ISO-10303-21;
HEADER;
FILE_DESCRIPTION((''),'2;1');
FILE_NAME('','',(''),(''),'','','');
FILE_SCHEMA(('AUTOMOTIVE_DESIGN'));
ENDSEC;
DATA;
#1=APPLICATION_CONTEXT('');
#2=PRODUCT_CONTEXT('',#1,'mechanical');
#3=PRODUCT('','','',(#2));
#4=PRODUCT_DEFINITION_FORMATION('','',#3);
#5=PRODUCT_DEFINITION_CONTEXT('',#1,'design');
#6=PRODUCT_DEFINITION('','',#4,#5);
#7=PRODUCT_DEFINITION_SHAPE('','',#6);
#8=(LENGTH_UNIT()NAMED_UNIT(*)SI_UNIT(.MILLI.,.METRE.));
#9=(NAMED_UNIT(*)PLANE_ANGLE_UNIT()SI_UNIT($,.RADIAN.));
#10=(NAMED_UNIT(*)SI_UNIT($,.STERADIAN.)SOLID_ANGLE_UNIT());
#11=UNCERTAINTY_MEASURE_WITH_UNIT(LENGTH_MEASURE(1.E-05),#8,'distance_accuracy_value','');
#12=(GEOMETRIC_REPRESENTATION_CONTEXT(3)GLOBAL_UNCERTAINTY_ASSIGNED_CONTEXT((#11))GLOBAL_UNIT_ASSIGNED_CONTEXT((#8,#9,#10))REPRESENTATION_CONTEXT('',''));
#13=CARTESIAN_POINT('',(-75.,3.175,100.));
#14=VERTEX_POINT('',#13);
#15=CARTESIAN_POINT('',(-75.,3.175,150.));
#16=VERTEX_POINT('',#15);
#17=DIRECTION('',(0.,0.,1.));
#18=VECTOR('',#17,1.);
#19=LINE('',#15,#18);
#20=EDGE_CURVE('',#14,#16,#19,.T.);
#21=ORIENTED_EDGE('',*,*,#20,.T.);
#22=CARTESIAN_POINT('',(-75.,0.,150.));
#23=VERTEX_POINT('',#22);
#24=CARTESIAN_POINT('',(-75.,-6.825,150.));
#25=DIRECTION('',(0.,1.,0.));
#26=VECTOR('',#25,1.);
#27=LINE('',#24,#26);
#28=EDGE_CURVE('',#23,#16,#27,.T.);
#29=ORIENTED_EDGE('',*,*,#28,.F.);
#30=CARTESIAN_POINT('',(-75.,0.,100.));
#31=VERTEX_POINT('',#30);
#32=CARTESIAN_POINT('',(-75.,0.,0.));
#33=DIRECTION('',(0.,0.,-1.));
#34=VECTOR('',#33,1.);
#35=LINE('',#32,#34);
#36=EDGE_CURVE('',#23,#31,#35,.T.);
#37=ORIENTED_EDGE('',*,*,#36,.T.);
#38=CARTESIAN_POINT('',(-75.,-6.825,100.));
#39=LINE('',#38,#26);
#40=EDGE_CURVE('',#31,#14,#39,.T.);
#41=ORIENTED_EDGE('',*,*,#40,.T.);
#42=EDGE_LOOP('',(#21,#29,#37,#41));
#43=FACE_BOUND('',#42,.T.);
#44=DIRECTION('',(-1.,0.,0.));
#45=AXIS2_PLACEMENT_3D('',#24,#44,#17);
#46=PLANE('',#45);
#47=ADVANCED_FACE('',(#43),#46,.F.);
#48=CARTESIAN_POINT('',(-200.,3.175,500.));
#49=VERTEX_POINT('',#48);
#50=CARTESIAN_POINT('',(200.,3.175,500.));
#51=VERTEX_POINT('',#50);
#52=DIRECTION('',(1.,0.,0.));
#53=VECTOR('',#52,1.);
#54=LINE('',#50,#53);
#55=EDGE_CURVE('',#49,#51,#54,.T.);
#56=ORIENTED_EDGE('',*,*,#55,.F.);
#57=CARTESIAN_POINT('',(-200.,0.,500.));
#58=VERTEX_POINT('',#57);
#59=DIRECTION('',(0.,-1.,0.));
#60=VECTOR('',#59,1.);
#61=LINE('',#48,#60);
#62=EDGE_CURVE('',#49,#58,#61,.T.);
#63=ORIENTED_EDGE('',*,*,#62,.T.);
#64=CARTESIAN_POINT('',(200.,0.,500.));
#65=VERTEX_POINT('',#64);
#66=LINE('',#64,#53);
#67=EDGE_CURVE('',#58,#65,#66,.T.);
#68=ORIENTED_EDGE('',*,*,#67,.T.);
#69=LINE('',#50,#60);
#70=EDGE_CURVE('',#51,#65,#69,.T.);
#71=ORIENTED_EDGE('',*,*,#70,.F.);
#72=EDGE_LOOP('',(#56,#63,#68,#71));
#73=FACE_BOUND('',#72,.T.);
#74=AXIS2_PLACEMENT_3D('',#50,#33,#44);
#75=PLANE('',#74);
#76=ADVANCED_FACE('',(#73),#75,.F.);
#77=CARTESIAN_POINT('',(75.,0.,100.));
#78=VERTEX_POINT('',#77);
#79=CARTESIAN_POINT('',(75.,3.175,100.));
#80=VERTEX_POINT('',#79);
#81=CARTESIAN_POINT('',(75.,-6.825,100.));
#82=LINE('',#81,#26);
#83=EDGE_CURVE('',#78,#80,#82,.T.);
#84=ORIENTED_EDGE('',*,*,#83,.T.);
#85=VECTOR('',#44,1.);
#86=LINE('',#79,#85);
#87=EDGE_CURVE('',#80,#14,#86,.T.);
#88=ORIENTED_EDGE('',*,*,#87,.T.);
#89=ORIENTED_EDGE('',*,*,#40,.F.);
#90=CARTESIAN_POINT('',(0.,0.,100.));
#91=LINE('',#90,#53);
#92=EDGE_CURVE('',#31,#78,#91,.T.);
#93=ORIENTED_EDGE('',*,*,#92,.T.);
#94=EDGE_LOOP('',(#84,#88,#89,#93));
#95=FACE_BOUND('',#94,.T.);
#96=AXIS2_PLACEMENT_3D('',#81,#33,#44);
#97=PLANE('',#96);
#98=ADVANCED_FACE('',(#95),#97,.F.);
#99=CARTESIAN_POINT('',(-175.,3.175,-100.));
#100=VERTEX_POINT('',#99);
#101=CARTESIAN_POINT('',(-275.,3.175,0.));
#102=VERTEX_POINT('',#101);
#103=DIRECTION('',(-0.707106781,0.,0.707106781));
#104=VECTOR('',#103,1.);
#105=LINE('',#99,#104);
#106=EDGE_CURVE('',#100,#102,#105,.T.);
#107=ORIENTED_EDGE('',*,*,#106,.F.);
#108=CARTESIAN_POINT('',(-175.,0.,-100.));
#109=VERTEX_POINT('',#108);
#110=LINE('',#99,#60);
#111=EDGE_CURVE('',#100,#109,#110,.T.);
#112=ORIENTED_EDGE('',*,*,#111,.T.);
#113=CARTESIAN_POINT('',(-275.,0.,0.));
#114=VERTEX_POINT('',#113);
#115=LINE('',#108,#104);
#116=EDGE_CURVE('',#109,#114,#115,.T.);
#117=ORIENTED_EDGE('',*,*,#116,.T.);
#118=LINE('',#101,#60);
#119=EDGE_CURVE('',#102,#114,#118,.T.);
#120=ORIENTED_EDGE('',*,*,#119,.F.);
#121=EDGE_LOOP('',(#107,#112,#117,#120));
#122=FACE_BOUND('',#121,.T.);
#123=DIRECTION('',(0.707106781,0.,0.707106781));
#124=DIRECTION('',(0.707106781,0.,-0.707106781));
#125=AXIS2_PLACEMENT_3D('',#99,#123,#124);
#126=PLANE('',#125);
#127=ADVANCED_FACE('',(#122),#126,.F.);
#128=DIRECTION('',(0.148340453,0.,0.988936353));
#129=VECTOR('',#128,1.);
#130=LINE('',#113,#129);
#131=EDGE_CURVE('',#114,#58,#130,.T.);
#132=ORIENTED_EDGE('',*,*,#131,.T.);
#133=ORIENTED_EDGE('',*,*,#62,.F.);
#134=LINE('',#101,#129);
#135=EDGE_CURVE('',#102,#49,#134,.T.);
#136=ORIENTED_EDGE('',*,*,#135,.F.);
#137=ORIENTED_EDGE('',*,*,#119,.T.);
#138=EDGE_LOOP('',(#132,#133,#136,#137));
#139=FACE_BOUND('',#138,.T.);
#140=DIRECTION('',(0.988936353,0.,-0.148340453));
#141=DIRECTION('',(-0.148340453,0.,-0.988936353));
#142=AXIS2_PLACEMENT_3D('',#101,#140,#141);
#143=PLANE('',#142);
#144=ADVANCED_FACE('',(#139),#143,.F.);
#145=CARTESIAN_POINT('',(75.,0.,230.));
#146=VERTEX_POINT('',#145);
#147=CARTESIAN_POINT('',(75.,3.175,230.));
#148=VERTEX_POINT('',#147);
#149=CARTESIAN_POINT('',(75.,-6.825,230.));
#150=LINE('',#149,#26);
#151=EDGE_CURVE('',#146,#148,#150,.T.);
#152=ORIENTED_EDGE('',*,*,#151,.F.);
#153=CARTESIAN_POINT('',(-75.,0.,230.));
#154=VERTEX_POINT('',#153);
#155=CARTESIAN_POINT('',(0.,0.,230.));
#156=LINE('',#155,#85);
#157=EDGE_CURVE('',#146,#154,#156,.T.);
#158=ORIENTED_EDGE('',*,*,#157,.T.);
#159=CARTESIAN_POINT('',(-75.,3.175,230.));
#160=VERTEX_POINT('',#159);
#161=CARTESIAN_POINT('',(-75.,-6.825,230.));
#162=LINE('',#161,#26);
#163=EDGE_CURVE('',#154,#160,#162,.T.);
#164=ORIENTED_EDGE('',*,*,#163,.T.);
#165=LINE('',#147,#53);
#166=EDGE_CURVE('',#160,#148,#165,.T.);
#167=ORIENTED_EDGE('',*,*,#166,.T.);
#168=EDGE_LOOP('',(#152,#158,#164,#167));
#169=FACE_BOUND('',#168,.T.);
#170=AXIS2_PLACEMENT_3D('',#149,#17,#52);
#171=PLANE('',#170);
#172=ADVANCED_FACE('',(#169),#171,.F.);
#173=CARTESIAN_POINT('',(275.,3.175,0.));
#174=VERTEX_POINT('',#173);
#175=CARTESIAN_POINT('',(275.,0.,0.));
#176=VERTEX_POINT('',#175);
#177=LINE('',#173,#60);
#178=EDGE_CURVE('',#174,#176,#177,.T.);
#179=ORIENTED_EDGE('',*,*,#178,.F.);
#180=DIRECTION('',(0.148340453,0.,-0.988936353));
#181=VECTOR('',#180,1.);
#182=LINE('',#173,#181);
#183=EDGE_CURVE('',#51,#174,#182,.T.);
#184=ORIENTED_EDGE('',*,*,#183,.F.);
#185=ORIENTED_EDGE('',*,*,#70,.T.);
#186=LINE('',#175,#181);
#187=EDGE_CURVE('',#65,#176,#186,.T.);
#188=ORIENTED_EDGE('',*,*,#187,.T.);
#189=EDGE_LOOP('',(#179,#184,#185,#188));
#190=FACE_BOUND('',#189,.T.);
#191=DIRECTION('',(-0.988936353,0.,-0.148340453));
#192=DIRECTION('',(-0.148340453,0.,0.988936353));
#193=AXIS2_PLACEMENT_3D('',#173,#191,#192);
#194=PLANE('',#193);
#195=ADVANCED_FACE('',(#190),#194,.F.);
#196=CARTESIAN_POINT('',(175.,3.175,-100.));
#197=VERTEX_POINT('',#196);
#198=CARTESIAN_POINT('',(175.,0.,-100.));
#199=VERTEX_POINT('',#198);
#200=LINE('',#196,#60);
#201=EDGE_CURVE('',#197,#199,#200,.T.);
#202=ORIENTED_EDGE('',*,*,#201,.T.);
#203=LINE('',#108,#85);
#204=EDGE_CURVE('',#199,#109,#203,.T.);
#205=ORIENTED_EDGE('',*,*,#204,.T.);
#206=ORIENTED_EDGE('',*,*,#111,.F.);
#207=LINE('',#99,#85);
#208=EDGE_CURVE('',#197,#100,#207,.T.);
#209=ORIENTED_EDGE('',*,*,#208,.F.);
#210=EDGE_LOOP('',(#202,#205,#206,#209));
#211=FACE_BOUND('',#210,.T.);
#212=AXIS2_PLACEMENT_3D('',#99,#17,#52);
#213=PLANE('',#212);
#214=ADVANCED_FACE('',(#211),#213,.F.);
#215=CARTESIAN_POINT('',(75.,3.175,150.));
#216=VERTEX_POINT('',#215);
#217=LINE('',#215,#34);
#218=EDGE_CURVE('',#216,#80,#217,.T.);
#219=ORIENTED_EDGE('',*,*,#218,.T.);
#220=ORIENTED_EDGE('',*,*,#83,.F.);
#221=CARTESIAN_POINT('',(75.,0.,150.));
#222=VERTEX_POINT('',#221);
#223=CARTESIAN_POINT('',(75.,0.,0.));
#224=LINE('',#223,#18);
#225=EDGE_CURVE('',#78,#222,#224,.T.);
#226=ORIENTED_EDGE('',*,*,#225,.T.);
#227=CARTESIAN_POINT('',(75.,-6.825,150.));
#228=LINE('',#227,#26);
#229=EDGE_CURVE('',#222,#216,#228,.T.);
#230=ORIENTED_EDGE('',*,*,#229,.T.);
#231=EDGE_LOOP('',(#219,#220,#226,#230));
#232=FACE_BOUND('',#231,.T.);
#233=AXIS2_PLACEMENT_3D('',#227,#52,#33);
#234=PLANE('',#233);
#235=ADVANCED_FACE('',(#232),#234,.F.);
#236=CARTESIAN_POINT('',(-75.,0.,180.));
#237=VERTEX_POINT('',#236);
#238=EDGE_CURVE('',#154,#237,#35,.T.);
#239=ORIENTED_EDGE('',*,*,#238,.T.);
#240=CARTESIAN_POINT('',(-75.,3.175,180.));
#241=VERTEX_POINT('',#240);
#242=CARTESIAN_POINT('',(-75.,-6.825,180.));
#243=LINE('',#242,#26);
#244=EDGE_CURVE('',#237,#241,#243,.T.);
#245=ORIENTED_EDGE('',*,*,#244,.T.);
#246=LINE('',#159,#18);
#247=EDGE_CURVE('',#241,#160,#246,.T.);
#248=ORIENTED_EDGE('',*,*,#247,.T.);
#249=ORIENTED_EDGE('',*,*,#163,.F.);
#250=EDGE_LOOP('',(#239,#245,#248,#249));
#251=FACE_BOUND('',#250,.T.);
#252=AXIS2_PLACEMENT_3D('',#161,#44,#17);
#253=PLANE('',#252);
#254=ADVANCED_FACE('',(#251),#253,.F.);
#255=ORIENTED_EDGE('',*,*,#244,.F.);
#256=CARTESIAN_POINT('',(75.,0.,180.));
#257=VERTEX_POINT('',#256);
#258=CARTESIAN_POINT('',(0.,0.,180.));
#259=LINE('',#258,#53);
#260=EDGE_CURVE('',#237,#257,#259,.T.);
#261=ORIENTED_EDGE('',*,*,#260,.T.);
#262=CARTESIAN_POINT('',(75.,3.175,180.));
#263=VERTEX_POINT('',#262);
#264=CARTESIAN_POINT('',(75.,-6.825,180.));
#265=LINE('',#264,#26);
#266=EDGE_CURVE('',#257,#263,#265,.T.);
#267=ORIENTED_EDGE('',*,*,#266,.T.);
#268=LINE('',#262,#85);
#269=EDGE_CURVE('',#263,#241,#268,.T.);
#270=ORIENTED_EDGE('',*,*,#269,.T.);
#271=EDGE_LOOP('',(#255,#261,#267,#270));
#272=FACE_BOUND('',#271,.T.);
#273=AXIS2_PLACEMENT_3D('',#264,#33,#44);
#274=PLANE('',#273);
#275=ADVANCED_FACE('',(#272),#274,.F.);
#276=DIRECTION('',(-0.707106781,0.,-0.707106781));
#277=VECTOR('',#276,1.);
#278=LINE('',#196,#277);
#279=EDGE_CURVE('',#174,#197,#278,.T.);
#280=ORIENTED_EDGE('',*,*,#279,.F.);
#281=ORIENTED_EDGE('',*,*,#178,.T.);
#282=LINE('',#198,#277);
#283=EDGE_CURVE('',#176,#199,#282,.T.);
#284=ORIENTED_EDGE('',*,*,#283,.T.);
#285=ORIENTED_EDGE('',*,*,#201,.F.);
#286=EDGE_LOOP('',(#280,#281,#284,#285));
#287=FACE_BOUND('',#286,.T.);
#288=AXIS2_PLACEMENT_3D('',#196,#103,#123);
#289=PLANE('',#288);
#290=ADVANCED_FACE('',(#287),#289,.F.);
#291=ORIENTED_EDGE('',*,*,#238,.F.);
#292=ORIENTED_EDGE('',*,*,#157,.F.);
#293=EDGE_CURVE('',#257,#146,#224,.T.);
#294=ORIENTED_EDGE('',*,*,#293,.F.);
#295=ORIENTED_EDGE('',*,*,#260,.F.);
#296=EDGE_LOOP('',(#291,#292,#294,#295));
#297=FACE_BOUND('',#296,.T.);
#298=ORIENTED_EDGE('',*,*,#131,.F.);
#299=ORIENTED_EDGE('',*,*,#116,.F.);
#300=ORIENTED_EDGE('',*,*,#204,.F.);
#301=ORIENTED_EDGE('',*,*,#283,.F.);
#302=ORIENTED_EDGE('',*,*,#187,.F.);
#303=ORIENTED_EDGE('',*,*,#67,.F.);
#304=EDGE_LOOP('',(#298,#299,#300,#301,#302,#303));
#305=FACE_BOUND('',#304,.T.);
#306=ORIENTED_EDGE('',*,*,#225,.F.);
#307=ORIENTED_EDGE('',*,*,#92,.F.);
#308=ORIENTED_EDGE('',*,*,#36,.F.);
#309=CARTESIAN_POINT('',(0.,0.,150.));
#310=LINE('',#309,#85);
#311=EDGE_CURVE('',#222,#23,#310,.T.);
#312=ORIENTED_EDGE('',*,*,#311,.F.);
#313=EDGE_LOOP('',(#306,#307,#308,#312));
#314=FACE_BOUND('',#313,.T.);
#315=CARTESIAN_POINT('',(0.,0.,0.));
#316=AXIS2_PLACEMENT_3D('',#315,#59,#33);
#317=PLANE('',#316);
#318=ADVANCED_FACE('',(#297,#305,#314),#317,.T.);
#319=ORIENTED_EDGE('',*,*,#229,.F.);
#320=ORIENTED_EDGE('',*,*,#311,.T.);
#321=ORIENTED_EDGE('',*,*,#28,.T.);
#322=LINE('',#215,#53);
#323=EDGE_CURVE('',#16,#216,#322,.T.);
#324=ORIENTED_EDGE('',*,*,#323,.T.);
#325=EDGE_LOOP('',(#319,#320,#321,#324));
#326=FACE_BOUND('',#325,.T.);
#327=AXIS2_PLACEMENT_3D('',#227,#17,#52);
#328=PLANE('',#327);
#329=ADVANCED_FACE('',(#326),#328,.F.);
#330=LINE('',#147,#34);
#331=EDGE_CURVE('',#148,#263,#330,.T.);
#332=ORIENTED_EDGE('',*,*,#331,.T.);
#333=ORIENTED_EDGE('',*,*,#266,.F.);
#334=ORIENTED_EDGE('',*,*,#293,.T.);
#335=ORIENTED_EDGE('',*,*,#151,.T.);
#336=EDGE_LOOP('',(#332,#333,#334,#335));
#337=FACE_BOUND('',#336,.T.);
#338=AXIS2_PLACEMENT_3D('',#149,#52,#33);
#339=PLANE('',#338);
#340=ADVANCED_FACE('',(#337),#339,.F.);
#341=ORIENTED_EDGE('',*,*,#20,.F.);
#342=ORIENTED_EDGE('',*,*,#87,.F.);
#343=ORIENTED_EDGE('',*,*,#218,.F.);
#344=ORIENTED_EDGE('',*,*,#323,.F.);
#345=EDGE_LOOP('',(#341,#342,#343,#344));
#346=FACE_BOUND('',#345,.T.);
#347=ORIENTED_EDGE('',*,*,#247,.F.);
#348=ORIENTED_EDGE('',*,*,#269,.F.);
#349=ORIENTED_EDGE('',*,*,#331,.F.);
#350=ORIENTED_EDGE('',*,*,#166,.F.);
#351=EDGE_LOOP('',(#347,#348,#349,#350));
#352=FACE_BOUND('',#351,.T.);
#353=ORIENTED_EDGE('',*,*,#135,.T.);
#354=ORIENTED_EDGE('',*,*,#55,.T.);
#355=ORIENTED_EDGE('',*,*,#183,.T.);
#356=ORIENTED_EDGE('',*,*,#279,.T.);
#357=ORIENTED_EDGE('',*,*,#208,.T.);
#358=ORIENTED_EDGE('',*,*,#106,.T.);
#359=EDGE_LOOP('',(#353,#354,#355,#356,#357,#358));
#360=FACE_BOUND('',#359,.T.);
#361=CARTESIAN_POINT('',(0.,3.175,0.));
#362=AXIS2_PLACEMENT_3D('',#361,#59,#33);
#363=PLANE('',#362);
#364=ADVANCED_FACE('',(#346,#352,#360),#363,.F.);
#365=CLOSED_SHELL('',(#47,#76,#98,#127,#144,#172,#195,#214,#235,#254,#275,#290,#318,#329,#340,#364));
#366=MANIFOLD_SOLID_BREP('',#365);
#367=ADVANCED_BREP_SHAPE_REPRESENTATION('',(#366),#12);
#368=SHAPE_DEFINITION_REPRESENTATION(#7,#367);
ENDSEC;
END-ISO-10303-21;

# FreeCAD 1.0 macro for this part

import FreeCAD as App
import Part
import Sketcher
Q = App.Units.Quantity


def add_polygon(sketch, points):
    """Adds a closed chain of lines whose ends are joined by coincident constraints."""
    first, n = sketch.GeometryCount, len(points)
    for a, b in zip(points, points[1:] + points[:1]):
        sketch.addGeometry(Part.LineSegment(App.Vector(*a, 0), App.Vector(*b, 0)), False)
    for i in range(n):
        sketch.addConstraint(Sketcher.Constraint("Coincident", first + i, 2, first + (i + 1) % n, 1))

doc = App.newDocument("Part")
params = doc.addObject("Spreadsheet::Sheet", "Params")
for row, (alias, value) in enumerate([
    ("sketch1_width", "350 mm"),
    ("sketch1_width2", "400 mm"),
    ("pad1_length", "3.175 mm"),
    ("sketch2_width", "150 mm"),
    ("sketch2_height", "50 mm"),
    ("pocket1_length", "10 mm"),
], start=1):
    params.set(f"A{row}", alias)
    params.set(f"B{row}", "=" + value)
    params.setAlias(f"B{row}", alias)

body = doc.addObject("PartDesign::Body", "Body")

# Sketch on XZ plane
sketch1 = doc.addObject("Sketcher::SketchObject", "Sketch")
body.addObject(sketch1)
sketch1.AttachmentSupport = (doc.XZ_Plane, [""])
sketch1.MapMode = "FlatFace"
add_polygon(sketch1, [(175, -100), (-175, -100), (-275, 0), (-200, 500), (200, 500), (275, 0)])  # lines 0-5
sketch1.addConstraint(Sketcher.Constraint("Horizontal", 0))
sketch1.addConstraint(Sketcher.Constraint("Horizontal", 3))
sketch1.addConstraint(Sketcher.Constraint("Symmetric", 1, 2, 4, 2, -1, 1))
sketch1.addConstraint(Sketcher.Constraint("PointOnObject", 1, 2, -1))
sketch1.addConstraint(Sketcher.Constraint("Perpendicular", 1, 5))
sketch1.addConstraint(Sketcher.Constraint("Equal", 2, 4))
sketch1.addConstraint(Sketcher.Constraint("Equal", 1, 5))
sketch1.addConstraint(Sketcher.Constraint("DistanceX", 0, 2, 0, 1, Q("350 mm")))
sketch1.addConstraint(Sketcher.Constraint("DistanceX", 3, 1, 3, 2, Q("400 mm")))
sketch1.addConstraint(Sketcher.Constraint("DistanceY", 0, 2, -1, 1, Q("100 mm")))
sketch1.addConstraint(Sketcher.Constraint("DistanceY", -1, 1, 2, 2, Q("500 mm")))
sketch1.setExpression("Constraints[13]", "Params.sketch1_width")
sketch1.setExpression("Constraints[14]", "Params.sketch1_width2")
pad1 = doc.addObject("PartDesign::Pad", "Pad")
body.addObject(pad1)
pad1.Profile = sketch1
pad1.setExpression("Length", "Params.pad1_length")
pad1.Reversed = True

# Sketch on XZ plane
sketch2 = doc.addObject("Sketcher::SketchObject", "Sketch001")
body.addObject(sketch2)
sketch2.AttachmentSupport = (doc.XZ_Plane, [""])
sketch2.MapMode = "FlatFace"
sketch2.AttachmentOffset = App.Placement(App.Vector(0, 0, -3.175), App.Rotation())
add_polygon(sketch2, [(-75, 180), (-75, 230), (75, 230), (75, 180)])  # lines 0-3
add_polygon(sketch2, [(-75, 100), (-75, 150), (75, 150), (75, 100)])  # lines 4-7
sketch2.addConstraint(Sketcher.Constraint("Vertical", 0))
sketch2.addConstraint(Sketcher.Constraint("Horizontal", 1))
sketch2.addConstraint(Sketcher.Constraint("Vertical", 2))
sketch2.addConstraint(Sketcher.Constraint("Horizontal", 3))
sketch2.addConstraint(Sketcher.Constraint("Vertical", 4))
sketch2.addConstraint(Sketcher.Constraint("Horizontal", 5))
sketch2.addConstraint(Sketcher.Constraint("Vertical", 6))
sketch2.addConstraint(Sketcher.Constraint("Horizontal", 7))
sketch2.addConstraint(Sketcher.Constraint("Vertical", 3, 2, 4, 2))
sketch2.addConstraint(Sketcher.Constraint("Vertical", 2, 2, 5, 2))
sketch2.addConstraint(Sketcher.Constraint("Equal", 2, 4))
sketch2.addConstraint(Sketcher.Constraint("DistanceX", 1, 1, 1, 2, Q("150 mm")))
sketch2.addConstraint(Sketcher.Constraint("DistanceY", 0, 1, 0, 2, Q("50 mm")))
sketch2.addConstraint(Sketcher.Constraint("DistanceX", 0, 2, -1, 1, Q("75 mm")))
sketch2.addConstraint(Sketcher.Constraint("DistanceY", -1, 1, 0, 2, Q("230 mm")))
sketch2.addConstraint(Sketcher.Constraint("DistanceY", -1, 1, 4, 2, Q("150 mm")))
sketch2.setExpression("Constraints[19]", "Params.sketch2_width")
sketch2.setExpression("Constraints[20]", "Params.sketch2_height")
pocket1 = doc.addObject("PartDesign::Pocket", "Pocket")
body.addObject(pocket1)
pocket1.Profile = sketch2
pocket1.setExpression("Length", "Params.pocket1_length")
pocket1.Reversed = True

doc.recompute()
